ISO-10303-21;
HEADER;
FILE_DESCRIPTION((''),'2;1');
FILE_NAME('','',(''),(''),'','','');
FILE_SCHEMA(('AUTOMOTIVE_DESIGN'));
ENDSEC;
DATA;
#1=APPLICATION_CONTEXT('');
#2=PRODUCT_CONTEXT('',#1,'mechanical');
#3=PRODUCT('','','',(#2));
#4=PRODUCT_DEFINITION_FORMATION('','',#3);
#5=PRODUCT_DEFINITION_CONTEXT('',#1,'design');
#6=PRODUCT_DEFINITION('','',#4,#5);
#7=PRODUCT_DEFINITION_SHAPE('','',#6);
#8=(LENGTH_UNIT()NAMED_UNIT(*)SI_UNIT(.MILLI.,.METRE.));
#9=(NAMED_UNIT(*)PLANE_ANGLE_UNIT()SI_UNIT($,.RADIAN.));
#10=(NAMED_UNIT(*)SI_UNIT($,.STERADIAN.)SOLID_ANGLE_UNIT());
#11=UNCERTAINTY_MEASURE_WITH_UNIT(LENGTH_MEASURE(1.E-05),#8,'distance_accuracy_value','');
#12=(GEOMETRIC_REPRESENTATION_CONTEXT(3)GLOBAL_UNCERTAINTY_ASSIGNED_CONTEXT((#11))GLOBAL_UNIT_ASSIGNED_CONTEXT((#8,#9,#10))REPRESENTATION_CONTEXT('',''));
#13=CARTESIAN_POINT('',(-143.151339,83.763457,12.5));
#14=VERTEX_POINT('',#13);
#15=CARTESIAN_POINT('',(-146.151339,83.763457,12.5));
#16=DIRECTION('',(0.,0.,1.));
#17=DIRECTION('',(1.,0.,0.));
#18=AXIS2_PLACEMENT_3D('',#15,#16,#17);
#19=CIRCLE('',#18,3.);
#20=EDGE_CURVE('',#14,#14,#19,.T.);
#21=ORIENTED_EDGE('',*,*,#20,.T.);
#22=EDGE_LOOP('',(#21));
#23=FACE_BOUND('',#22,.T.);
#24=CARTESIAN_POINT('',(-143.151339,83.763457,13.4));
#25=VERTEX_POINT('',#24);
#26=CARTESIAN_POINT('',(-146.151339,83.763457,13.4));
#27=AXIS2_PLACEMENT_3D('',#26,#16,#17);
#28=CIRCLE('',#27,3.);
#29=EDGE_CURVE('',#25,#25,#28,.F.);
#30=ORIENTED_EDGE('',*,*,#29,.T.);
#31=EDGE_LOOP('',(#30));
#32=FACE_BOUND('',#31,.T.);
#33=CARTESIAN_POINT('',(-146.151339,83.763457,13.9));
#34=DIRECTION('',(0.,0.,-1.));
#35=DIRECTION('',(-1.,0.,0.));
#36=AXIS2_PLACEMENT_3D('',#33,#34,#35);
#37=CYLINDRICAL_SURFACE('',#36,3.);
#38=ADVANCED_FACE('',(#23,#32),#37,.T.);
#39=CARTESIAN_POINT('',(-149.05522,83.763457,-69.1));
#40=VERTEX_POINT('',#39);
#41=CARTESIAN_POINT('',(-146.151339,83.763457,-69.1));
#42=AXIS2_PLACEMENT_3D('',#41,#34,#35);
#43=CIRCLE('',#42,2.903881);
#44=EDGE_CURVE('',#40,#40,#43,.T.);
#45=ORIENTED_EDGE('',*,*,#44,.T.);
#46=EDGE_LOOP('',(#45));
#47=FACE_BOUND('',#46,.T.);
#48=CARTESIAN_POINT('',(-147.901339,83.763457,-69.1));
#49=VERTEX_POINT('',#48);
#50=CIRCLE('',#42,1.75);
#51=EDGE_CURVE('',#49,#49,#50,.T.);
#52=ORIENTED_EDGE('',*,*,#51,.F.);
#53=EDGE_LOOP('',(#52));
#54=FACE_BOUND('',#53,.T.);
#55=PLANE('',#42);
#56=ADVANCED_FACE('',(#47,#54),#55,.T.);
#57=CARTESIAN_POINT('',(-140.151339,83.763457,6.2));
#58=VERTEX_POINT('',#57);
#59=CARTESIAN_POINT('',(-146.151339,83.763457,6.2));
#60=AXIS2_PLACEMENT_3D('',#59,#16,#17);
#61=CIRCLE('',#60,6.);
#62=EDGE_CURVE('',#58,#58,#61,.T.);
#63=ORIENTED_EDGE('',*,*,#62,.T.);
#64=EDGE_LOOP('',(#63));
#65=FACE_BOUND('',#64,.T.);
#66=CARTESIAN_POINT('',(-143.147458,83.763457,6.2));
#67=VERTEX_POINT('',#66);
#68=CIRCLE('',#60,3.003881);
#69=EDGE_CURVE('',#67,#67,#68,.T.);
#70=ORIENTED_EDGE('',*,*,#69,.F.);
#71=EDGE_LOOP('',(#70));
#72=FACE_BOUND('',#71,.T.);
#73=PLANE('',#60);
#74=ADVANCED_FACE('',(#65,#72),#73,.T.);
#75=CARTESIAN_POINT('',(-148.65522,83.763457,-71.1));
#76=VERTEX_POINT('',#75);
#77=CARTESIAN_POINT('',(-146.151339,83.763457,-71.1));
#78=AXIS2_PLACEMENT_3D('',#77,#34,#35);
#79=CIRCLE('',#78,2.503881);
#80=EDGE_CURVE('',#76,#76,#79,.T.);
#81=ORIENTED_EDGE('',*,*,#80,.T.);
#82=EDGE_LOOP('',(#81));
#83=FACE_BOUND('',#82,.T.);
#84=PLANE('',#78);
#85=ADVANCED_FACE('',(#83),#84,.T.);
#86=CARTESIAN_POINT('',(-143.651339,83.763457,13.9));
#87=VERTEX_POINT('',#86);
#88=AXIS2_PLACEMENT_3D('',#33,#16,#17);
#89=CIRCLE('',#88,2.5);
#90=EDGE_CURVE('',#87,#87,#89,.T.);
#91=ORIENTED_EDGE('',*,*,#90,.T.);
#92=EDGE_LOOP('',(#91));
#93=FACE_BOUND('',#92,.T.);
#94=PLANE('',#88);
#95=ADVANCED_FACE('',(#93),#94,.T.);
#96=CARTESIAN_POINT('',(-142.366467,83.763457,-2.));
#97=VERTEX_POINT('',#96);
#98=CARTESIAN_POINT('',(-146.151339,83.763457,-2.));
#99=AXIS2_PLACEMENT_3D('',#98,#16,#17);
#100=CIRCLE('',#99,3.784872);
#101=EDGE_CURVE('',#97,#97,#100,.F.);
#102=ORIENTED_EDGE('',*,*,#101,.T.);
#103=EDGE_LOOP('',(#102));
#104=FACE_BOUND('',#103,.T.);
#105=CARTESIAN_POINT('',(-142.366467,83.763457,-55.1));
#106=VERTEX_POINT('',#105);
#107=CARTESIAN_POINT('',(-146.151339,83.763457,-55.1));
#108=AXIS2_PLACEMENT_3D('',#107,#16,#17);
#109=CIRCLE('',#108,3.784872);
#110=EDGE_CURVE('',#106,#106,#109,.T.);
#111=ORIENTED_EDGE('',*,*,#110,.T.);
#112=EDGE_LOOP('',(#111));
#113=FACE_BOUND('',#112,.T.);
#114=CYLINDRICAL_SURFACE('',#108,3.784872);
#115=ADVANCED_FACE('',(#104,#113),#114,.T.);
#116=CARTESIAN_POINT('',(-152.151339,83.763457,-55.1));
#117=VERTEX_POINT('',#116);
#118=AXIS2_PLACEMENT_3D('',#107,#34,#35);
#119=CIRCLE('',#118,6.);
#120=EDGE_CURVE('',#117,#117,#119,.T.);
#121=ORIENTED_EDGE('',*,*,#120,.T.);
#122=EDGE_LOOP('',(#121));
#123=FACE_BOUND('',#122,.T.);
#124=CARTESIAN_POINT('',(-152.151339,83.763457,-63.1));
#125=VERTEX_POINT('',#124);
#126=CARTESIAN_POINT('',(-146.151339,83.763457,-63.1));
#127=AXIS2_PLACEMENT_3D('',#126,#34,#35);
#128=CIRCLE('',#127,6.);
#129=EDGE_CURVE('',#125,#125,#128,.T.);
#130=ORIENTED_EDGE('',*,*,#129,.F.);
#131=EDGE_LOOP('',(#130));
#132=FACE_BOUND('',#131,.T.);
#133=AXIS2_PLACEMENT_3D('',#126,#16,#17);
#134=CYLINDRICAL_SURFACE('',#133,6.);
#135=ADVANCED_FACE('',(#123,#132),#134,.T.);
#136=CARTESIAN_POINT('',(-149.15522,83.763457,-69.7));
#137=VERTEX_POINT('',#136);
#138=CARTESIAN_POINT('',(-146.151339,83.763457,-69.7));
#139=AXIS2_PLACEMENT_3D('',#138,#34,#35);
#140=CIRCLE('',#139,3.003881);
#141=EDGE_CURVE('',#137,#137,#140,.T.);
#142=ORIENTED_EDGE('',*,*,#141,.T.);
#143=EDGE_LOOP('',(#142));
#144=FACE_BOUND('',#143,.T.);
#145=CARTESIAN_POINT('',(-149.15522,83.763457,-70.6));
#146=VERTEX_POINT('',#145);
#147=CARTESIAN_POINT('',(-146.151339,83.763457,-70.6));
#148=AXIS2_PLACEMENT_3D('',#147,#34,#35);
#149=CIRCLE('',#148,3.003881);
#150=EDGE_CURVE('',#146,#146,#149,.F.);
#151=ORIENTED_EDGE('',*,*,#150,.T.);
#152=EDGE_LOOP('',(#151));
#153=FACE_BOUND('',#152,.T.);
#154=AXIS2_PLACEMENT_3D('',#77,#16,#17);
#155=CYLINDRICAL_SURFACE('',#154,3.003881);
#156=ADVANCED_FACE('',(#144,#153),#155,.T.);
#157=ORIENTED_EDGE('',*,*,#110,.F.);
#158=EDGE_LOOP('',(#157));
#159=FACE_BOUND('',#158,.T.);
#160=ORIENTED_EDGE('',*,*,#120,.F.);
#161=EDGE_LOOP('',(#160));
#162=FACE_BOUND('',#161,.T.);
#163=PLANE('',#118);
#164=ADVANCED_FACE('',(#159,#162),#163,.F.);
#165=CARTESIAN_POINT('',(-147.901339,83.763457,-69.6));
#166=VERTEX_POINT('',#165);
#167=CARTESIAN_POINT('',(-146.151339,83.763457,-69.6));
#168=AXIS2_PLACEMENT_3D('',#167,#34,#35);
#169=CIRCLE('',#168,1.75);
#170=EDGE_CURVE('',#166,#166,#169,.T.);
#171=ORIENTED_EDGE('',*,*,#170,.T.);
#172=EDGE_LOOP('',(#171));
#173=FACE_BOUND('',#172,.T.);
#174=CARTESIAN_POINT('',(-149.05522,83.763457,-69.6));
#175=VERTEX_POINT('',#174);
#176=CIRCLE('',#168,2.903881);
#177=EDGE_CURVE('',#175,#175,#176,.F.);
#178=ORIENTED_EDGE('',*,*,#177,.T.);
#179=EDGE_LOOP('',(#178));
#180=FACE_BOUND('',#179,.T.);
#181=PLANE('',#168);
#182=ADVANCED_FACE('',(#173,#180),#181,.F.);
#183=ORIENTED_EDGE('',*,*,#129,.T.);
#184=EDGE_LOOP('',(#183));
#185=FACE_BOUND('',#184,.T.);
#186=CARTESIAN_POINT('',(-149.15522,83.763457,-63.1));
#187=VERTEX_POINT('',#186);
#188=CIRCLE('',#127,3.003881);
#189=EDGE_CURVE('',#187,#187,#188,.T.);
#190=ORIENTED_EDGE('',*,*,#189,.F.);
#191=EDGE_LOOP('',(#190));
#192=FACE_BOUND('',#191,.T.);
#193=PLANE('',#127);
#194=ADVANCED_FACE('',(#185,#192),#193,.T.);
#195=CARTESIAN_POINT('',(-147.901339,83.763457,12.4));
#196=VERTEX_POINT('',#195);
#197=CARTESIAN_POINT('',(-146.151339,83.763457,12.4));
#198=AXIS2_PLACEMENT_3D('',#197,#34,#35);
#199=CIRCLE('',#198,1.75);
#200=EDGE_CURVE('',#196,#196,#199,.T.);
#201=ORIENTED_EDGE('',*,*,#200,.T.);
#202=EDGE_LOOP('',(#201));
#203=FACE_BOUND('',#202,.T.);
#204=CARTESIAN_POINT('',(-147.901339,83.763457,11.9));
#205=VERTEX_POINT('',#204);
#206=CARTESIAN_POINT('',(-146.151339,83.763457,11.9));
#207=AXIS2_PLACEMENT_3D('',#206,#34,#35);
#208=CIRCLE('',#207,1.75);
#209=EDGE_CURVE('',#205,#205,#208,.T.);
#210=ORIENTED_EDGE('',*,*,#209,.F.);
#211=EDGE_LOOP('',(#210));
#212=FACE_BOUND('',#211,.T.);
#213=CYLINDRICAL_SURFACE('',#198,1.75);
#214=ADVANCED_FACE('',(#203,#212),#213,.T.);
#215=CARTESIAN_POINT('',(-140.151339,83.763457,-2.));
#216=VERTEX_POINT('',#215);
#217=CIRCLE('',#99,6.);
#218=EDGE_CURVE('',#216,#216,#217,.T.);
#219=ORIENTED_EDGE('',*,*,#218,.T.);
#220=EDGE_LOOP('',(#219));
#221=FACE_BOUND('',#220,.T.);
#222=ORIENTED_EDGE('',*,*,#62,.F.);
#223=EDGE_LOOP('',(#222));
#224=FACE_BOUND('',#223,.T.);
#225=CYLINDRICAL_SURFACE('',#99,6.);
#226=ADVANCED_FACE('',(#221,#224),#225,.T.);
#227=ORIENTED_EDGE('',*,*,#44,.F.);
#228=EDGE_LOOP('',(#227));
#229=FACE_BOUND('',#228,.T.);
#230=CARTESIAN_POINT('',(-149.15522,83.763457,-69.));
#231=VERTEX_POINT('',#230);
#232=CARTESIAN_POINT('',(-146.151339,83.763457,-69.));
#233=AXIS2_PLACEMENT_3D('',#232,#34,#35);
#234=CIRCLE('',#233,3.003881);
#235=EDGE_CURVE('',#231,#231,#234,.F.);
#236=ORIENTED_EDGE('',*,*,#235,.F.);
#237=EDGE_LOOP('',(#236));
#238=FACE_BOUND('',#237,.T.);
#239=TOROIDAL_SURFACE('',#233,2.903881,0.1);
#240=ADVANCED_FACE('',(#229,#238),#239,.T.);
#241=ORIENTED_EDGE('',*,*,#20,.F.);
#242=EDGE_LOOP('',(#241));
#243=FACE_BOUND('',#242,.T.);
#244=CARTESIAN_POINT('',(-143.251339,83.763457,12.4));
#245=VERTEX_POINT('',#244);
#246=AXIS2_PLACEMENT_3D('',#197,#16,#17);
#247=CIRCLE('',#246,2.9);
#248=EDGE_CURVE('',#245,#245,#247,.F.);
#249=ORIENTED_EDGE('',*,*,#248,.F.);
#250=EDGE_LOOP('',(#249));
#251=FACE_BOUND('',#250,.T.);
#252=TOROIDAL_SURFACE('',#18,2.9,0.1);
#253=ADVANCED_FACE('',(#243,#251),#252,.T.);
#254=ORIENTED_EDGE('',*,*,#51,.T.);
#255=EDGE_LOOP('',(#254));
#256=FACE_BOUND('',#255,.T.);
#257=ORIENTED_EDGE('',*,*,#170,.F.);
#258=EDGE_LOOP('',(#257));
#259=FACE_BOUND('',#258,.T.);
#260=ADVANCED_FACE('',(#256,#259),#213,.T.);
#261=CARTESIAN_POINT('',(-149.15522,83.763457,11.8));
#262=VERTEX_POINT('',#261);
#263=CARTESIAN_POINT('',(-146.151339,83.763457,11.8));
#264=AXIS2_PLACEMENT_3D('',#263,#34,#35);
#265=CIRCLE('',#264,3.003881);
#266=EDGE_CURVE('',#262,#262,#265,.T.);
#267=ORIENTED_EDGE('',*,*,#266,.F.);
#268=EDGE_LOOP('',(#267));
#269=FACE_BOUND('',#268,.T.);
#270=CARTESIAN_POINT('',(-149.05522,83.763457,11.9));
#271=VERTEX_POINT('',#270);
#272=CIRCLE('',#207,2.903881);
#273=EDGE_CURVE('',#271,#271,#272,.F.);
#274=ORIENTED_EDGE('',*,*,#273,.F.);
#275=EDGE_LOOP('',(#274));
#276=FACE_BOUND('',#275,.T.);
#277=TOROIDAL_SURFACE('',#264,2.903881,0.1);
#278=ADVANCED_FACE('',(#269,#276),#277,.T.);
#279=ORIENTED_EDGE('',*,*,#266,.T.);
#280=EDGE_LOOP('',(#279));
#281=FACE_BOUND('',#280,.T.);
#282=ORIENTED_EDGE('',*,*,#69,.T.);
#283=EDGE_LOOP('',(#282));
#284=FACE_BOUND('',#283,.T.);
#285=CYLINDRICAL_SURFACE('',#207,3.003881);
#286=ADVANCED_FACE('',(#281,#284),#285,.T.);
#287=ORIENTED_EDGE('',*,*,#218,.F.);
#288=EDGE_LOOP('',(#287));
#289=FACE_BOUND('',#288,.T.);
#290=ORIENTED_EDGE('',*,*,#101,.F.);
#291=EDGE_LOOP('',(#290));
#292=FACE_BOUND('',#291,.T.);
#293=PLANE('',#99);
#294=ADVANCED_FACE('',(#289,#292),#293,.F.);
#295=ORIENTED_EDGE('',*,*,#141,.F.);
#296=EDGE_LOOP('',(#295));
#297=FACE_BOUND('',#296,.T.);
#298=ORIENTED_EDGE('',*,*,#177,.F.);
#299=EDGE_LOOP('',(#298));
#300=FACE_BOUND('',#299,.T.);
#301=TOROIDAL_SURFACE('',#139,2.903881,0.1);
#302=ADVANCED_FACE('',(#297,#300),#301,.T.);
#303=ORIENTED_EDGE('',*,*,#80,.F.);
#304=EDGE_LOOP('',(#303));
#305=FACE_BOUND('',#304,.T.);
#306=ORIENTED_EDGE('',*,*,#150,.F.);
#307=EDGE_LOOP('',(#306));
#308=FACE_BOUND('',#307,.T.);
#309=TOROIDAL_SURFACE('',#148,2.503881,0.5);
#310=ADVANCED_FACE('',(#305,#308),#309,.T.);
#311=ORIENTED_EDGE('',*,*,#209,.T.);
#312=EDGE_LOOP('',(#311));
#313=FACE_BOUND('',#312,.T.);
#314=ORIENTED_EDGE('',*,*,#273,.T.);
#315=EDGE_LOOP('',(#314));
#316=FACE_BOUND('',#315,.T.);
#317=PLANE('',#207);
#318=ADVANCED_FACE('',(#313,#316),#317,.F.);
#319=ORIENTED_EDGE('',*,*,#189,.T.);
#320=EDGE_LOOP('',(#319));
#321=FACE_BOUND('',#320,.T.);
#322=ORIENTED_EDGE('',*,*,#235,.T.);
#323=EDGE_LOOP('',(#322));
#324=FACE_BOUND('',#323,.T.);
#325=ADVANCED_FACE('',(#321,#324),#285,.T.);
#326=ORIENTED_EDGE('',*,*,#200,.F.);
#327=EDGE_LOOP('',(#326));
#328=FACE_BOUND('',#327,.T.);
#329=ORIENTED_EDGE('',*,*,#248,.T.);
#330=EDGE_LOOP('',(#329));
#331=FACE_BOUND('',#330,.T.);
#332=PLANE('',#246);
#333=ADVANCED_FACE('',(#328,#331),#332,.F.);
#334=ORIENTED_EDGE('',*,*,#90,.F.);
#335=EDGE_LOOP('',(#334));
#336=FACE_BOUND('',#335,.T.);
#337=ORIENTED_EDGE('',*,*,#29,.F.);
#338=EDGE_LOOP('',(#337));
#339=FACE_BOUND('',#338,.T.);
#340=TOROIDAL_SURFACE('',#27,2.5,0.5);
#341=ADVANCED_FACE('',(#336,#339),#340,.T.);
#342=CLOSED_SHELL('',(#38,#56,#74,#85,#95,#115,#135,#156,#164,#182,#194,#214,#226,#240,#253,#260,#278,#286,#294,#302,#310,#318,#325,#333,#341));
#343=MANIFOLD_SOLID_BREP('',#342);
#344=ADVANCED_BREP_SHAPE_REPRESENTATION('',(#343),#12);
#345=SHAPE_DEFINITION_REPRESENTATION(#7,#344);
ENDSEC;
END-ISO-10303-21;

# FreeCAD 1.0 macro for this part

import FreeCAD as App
import Part
import Sketcher
from FreeCAD import Vector


def edges_at(feature, points):
    """Names of the edges that pass closest to the given points."""
    edges = feature.Shape.Edges
    near = lambda p: min(range(len(edges)), key=lambda i: edges[i].distToShape(Part.Vertex(*p))[0])
    return sorted({f"Edge{near(p) + 1}" for p in points})

doc = App.newDocument("Part")
body = doc.addObject("PartDesign::Body", "Body")

# Sketch on XY plane
sketch1 = body.newObject("Sketcher::SketchObject", "Sketch")
sketch1.AttachmentSupport = (doc.getObject("XY_Plane"), [""])
sketch1.MapMode = "FlatFace"
sketch1.addGeometry(Part.Circle(Vector(-146.2, 83.8, 0), Vector(0, 0, 1), 3.8), False)
sketch1.addConstraint([
    Sketcher.Constraint("Diameter", 0, 7.569744),
    Sketcher.Constraint("DistanceX", 0, 3, -1, 1, 146.151339),
    Sketcher.Constraint("DistanceY", -1, 1, 0, 3, 83.763457),
])
pad1 = body.newObject("PartDesign::Pad", "Pad")
pad1.Profile = sketch1
pad1.Length = 55.1
pad1.Reversed = True

# Sketch on XY plane
sketch2 = body.newObject("Sketcher::SketchObject", "Sketch001")
sketch2.AttachmentSupport = (doc.getObject("XY_Plane"), [""])
sketch2.MapMode = "FlatFace"
sketch2.addGeometry(Part.Circle(Vector(-146, 84, 0), Vector(0, 0, 1), 6), False)
sketch2.addConstraint([
    Sketcher.Constraint("Diameter", 0, 12.0),
    Sketcher.Constraint("DistanceX", 0, 3, -1, 1, 146.151339),
    Sketcher.Constraint("DistanceY", -1, 1, 0, 3, 83.763457),
])
pad2 = body.newObject("PartDesign::Pad", "Pad001")
pad2.Profile = sketch2
pad2.Type = "TwoLengths"
pad2.Length = 6.2
pad2.Length2 = 2

# Sketch on XY plane
sketch3 = body.newObject("Sketcher::SketchObject", "Sketch002")
sketch3.AttachmentSupport = (doc.getObject("XY_Plane"), [""])
sketch3.MapMode = "FlatFace"
sketch3.AttachmentOffset = App.Placement(Vector(0, 0, -55.1), App.Rotation())
sketch3.addGeometry(Part.Circle(Vector(-146, 84, 0), Vector(0, 0, 1), 6), False)
sketch3.addConstraint([
    Sketcher.Constraint("Diameter", 0, 12.0),
    Sketcher.Constraint("DistanceX", 0, 3, -1, 1, 146.151339),
    Sketcher.Constraint("DistanceY", -1, 1, 0, 3, 83.763457),
])
pad3 = body.newObject("PartDesign::Pad", "Pad002")
pad3.Profile = sketch3
pad3.Length = 8
pad3.Reversed = True

# Sketch on XY plane
sketch4 = body.newObject("Sketcher::SketchObject", "Sketch003")
sketch4.AttachmentSupport = (doc.getObject("XY_Plane"), [""])
sketch4.MapMode = "FlatFace"
sketch4.AttachmentOffset = App.Placement(Vector(0, 0, -63.1), App.Rotation())
sketch4.addGeometry(Part.Circle(Vector(-146.2, 83.8, 0), Vector(0, 0, 1), 3), False)
sketch4.addConstraint([
    Sketcher.Constraint("Diameter", 0, 6.007762),
    Sketcher.Constraint("DistanceX", 0, 3, -1, 1, 146.151339),
    Sketcher.Constraint("DistanceY", -1, 1, 0, 3, 83.763457),
])
pad4 = body.newObject("PartDesign::Pad", "Pad003")
pad4.Profile = sketch4
pad4.Type = "TwoLengths"
pad4.Length = 6
pad4.Length2 = 75
pad4.Reversed = True

# Sketch on XY plane
sketch5 = body.newObject("Sketcher::SketchObject", "Sketch004")
sketch5.AttachmentSupport = (doc.getObject("XY_Plane"), [""])
sketch5.MapMode = "FlatFace"
sketch5.AttachmentOffset = App.Placement(Vector(0, 0, -69.1), App.Rotation())
sketch5.addGeometry(Part.Circle(Vector(-146.2, 83.8, 0), Vector(0, 0, 1), 1.8), False)
sketch5.addConstraint([
    Sketcher.Constraint("Diameter", 0, 3.5),
    Sketcher.Constraint("DistanceX", 0, 3, -1, 1, 146.151339),
    Sketcher.Constraint("DistanceY", -1, 1, 0, 3, 83.763457),
])
pad5 = body.newObject("PartDesign::Pad", "Pad004")
pad5.Profile = sketch5
pad5.Type = "TwoLengths"
pad5.Length = 0.5
pad5.Length2 = 81.5
pad5.Reversed = True

# Sketch on XY plane
sketch6 = body.newObject("Sketcher::SketchObject", "Sketch005")
sketch6.AttachmentSupport = (doc.getObject("XY_Plane"), [""])
sketch6.MapMode = "FlatFace"
sketch6.AttachmentOffset = App.Placement(Vector(0, 0, -69.6), App.Rotation())
sketch6.addGeometry(Part.Circle(Vector(-146.2, 83.8, 0), Vector(0, 0, 1), 3), False)
sketch6.addConstraint([
    Sketcher.Constraint("Diameter", 0, 6.007762),
    Sketcher.Constraint("DistanceX", 0, 3, -1, 1, 146.151339),
    Sketcher.Constraint("DistanceY", -1, 1, 0, 3, 83.763457),
])
pad6 = body.newObject("PartDesign::Pad", "Pad005")
pad6.Profile = sketch6
pad6.Length = 1.5
pad6.Reversed = True

# Sketch on XY plane
sketch7 = body.newObject("Sketcher::SketchObject", "Sketch006")
sketch7.AttachmentSupport = (doc.getObject("XY_Plane"), [""])
sketch7.MapMode = "FlatFace"
sketch7.AttachmentOffset = App.Placement(Vector(0, 0, 12.4), App.Rotation())
sketch7.addGeometry(Part.Circle(Vector(-146.2, 83.8, 0), Vector(0, 0, 1), 3), False)
sketch7.addConstraint([
    Sketcher.Constraint("Diameter", 0, 6.0),
    Sketcher.Constraint("DistanceX", 0, 3, -1, 1, 146.151339),
    Sketcher.Constraint("DistanceY", -1, 1, 0, 3, 83.763457),
])
pad7 = body.newObject("PartDesign::Pad", "Pad006")
pad7.Profile = sketch7
pad7.Length = 1.5
doc.recompute()

fillet = body.newObject("PartDesign::Fillet", "Fillet")
fillet.Base = (pad7, edges_at(pad7, [(-143.147, 83.763, -71.1), (-149.151, 83.763, 13.9)]))
fillet.Radius = 0.5
doc.recompute()

fillet2 = body.newObject("PartDesign::Fillet", "Fillet001")
fillet2.Base = (fillet, edges_at(fillet, [
    (-143.147, 83.763, 11.9),
    (-143.147, 83.763, -69.1),
    (-143.147, 83.763, -69.6),
    (-149.151, 83.763, 12.4),
]))
fillet2.Radius = 0.1

doc.recompute()
